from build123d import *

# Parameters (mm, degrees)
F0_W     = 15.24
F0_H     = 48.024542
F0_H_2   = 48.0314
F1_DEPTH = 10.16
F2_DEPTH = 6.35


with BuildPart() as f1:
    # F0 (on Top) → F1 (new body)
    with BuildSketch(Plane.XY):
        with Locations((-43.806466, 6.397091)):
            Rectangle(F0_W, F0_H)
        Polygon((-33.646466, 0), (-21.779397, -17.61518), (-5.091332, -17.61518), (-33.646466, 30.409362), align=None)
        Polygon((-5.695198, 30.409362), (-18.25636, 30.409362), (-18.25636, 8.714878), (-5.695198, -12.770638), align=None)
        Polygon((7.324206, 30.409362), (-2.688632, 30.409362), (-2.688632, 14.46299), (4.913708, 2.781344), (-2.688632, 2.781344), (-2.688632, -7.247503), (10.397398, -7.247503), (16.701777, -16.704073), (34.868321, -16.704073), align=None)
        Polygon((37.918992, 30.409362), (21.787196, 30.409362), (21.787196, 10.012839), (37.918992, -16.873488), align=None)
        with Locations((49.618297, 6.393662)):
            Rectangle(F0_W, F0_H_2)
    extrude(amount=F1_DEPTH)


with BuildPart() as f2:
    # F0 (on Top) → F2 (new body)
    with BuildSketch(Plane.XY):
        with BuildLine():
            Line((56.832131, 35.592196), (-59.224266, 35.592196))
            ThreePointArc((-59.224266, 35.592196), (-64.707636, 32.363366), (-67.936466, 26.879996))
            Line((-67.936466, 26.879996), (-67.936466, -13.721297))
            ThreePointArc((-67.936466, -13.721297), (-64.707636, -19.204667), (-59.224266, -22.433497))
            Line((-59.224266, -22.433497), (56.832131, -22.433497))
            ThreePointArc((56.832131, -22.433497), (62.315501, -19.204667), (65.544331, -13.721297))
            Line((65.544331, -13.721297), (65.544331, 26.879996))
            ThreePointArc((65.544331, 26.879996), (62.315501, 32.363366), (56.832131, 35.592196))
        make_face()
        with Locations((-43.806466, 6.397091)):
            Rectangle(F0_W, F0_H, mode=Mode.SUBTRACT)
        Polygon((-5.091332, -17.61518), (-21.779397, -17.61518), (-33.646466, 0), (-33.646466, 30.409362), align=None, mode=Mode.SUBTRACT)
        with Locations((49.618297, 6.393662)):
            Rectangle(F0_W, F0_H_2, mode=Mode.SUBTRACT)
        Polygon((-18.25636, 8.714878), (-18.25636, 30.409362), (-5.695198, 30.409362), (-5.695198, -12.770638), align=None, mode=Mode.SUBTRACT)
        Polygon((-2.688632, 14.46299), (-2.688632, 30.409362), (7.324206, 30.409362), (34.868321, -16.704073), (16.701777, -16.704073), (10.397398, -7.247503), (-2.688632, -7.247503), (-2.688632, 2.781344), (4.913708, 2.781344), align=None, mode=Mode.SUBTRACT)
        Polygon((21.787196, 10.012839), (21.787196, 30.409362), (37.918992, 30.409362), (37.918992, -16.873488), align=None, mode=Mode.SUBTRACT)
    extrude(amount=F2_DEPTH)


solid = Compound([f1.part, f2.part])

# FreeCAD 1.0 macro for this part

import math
import FreeCAD as App
import Part
import Sketcher

V = App.Vector
Q = App.Units.Quantity

doc = App.newDocument("Part")
body = doc.addObject("PartDesign::Body", "Body")
body.AllowCompound = True

sketch1 = body.newObject("Sketcher::SketchObject", "Sketch")
sketch1.AttachmentSupport = (doc.getObject("XY_Plane"), [""])
sketch1.MapMode = "FlatFace"
sketch1.addGeometry(Part.LineSegment(V(-51, 30, 0), V(-51, -18, 0)), False)
sketch1.addGeometry(Part.LineSegment(V(-51, -18, 0), V(-36, -18, 0)), False)
sketch1.addGeometry(Part.LineSegment(V(-36, -18, 0), V(-36, 30, 0)), False)
sketch1.addGeometry(Part.LineSegment(V(-36, 30, 0), V(-51, 30, 0)), False)
sketch1.addGeometry(Part.LineSegment(V(-34, 0, 0), V(-22, -18, 0)), False)
sketch1.addGeometry(Part.LineSegment(V(-22, -18, 0), V(-5, -18, 0)), False)
sketch1.addGeometry(Part.LineSegment(V(-5, -18, 0), V(-34, 30, 0)), False)
sketch1.addGeometry(Part.LineSegment(V(-34, 30, 0), V(-34, 0, 0)), False)
sketch1.addGeometry(Part.LineSegment(V(-6, 30, 0), V(-18, 30, 0)), False)
sketch1.addGeometry(Part.LineSegment(V(-18, 30, 0), V(-18, 9, 0)), False)
sketch1.addGeometry(Part.LineSegment(V(-18, 9, 0), V(-6, -13, 0)), False)
sketch1.addGeometry(Part.LineSegment(V(-6, -13, 0), V(-6, 30, 0)), False)
sketch1.addGeometry(Part.LineSegment(V(7, 30, 0), V(-3, 30, 0)), False)
sketch1.addGeometry(Part.LineSegment(V(-3, 30, 0), V(-3, 14, 0)), False)
sketch1.addGeometry(Part.LineSegment(V(-3, 14, 0), V(5, 3, 0)), False)
sketch1.addGeometry(Part.LineSegment(V(5, 3, 0), V(-3, 3, 0)), False)
sketch1.addGeometry(Part.LineSegment(V(-3, 3, 0), V(-3, -7, 0)), False)
sketch1.addGeometry(Part.LineSegment(V(-3, -7, 0), V(10, -7, 0)), False)
sketch1.addGeometry(Part.LineSegment(V(10, -7, 0), V(17, -17, 0)), False)
sketch1.addGeometry(Part.LineSegment(V(17, -17, 0), V(35, -17, 0)), False)
sketch1.addGeometry(Part.LineSegment(V(35, -17, 0), V(7, 30, 0)), False)
sketch1.addGeometry(Part.LineSegment(V(38, 30, 0), V(22, 30, 0)), False)
sketch1.addGeometry(Part.LineSegment(V(22, 30, 0), V(22, 10, 0)), False)
sketch1.addGeometry(Part.LineSegment(V(22, 10, 0), V(38, -17, 0)), False)
sketch1.addGeometry(Part.LineSegment(V(38, -17, 0), V(38, 30, 0)), False)
sketch1.addGeometry(Part.LineSegment(V(42, 30, 0), V(42, -18, 0)), False)
sketch1.addGeometry(Part.LineSegment(V(42, -18, 0), V(57, -18, 0)), False)
sketch1.addGeometry(Part.LineSegment(V(57, -18, 0), V(57, 30, 0)), False)
sketch1.addGeometry(Part.LineSegment(V(57, 30, 0), V(42, 30, 0)), False)
sketch1.addConstraint(Sketcher.Constraint("Coincident", 0, 2, 1, 1))
sketch1.addConstraint(Sketcher.Constraint("Coincident", 1, 2, 2, 1))
sketch1.addConstraint(Sketcher.Constraint("Coincident", 2, 2, 3, 1))
sketch1.addConstraint(Sketcher.Constraint("Coincident", 3, 2, 0, 1))
sketch1.addConstraint(Sketcher.Constraint("Coincident", 4, 2, 5, 1))
sketch1.addConstraint(Sketcher.Constraint("Coincident", 5, 2, 6, 1))
sketch1.addConstraint(Sketcher.Constraint("Coincident", 6, 2, 7, 1))
sketch1.addConstraint(Sketcher.Constraint("Coincident", 7, 2, 4, 1))
sketch1.addConstraint(Sketcher.Constraint("Coincident", 8, 2, 9, 1))
sketch1.addConstraint(Sketcher.Constraint("Coincident", 9, 2, 10, 1))
sketch1.addConstraint(Sketcher.Constraint("Coincident", 10, 2, 11, 1))
sketch1.addConstraint(Sketcher.Constraint("Coincident", 11, 2, 8, 1))
sketch1.addConstraint(Sketcher.Constraint("Coincident", 12, 2, 13, 1))
sketch1.addConstraint(Sketcher.Constraint("Coincident", 13, 2, 14, 1))
sketch1.addConstraint(Sketcher.Constraint("Coincident", 14, 2, 15, 1))
sketch1.addConstraint(Sketcher.Constraint("Coincident", 15, 2, 16, 1))
sketch1.addConstraint(Sketcher.Constraint("Coincident", 16, 2, 17, 1))
sketch1.addConstraint(Sketcher.Constraint("Coincident", 17, 2, 18, 1))
sketch1.addConstraint(Sketcher.Constraint("Coincident", 18, 2, 19, 1))
sketch1.addConstraint(Sketcher.Constraint("Coincident", 19, 2, 20, 1))
sketch1.addConstraint(Sketcher.Constraint("Coincident", 20, 2, 12, 1))
sketch1.addConstraint(Sketcher.Constraint("Coincident", 21, 2, 22, 1))
sketch1.addConstraint(Sketcher.Constraint("Coincident", 22, 2, 23, 1))
sketch1.addConstraint(Sketcher.Constraint("Coincident", 23, 2, 24, 1))
sketch1.addConstraint(Sketcher.Constraint("Coincident", 24, 2, 21, 1))
sketch1.addConstraint(Sketcher.Constraint("Coincident", 25, 2, 26, 1))
sketch1.addConstraint(Sketcher.Constraint("Coincident", 26, 2, 27, 1))
sketch1.addConstraint(Sketcher.Constraint("Coincident", 27, 2, 28, 1))
sketch1.addConstraint(Sketcher.Constraint("Coincident", 28, 2, 25, 1))
sketch1.addConstraint(Sketcher.Constraint("Vertical", 0))
sketch1.addConstraint(Sketcher.Constraint("Horizontal", 1))
sketch1.addConstraint(Sketcher.Constraint("Vertical", 2))
sketch1.addConstraint(Sketcher.Constraint("Horizontal", 3))
sketch1.addConstraint(Sketcher.Constraint("Horizontal", 5))
sketch1.addConstraint(Sketcher.Constraint("Vertical", 7))
sketch1.addConstraint(Sketcher.Constraint("Horizontal", 8))
sketch1.addConstraint(Sketcher.Constraint("Vertical", 9))
sketch1.addConstraint(Sketcher.Constraint("Vertical", 11))
sketch1.addConstraint(Sketcher.Constraint("Horizontal", 12))
sketch1.addConstraint(Sketcher.Constraint("Vertical", 13))
sketch1.addConstraint(Sketcher.Constraint("Horizontal", 15))
sketch1.addConstraint(Sketcher.Constraint("Vertical", 16))
sketch1.addConstraint(Sketcher.Constraint("Horizontal", 17))
sketch1.addConstraint(Sketcher.Constraint("Horizontal", 19))
sketch1.addConstraint(Sketcher.Constraint("Horizontal", 21))
sketch1.addConstraint(Sketcher.Constraint("Vertical", 22))
sketch1.addConstraint(Sketcher.Constraint("Vertical", 24))
sketch1.addConstraint(Sketcher.Constraint("Vertical", 25))
sketch1.addConstraint(Sketcher.Constraint("Horizontal", 26))
sketch1.addConstraint(Sketcher.Constraint("Vertical", 27))
sketch1.addConstraint(Sketcher.Constraint("Horizontal", 28))
sketch1.addConstraint(Sketcher.Constraint("PointOnObject", 7, 2, -1))
sketch1.addConstraint(Sketcher.Constraint("Parallel", 10, 20))
sketch1.addConstraint(Sketcher.Constraint("Horizontal", 1, 2, 4, 2))
sketch1.addConstraint(Sketcher.Constraint("Horizontal", 3, 2, 6, 2))
sketch1.addConstraint(Sketcher.Constraint("Horizontal", 6, 2, 8, 2))
sketch1.addConstraint(Sketcher.Constraint("Horizontal", 11, 2, 12, 2))
sketch1.addConstraint(Sketcher.Constraint("Horizontal", 20, 2, 21, 2))
sketch1.addConstraint(Sketcher.Constraint("Horizontal", 24, 2, 27, 2))
sketch1.addConstraint(Sketcher.Constraint("Vertical", 13, 2, 15, 2))
sketch1.addConstraint(Sketcher.Constraint("Equal", 3, 26))
sketch1.addConstraint(Sketcher.Constraint("DistanceX", 1, 1, 1, 2, Q("0.6 in")))
sketch1.addConstraint(Sketcher.Constraint("DistanceY", 11, 1, 11, 2, Q("1.7 in")))
sketch1.addConstraint(Sketcher.Constraint("DistanceX", 2, 2, 6, 2, Q("0.1 in")))
sketch1.addConstraint(Sketcher.Constraint("DistanceY", 25, 2, 25, 1, Q("1.891 in")))
sketch1.addConstraint(Sketcher.Constraint("Distance", 20, 54.574298))
sketch1.addConstraint(Sketcher.Constraint("DistanceX", 15, 2, 15, 1, 7.60234))
sketch1.addConstraint(Sketcher.Constraint("DistanceX", 17, 1, 17, 2, 13.08603))
sketch1.addConstraint(Sketcher.Constraint("DistanceY", 0, 2, 0, 1, 48.024542))
sketch1.addConstraint(Sketcher.Constraint("DistanceY", 24, 1, 24, 2, 47.28285))
sketch1.addConstraint(Sketcher.Constraint("DistanceX", 10, 2, -1, 1, 5.695198))
sketch1.addConstraint(Sketcher.Constraint("DistanceX", -1, 1, 17, 2, 10.397398))
sketch1.addConstraint(Sketcher.Constraint("DistanceX", 4, 2, 10, 2, 16.084199))
sketch1.addConstraint(Sketcher.Constraint("DistanceX", 5, 2, 15, 2, 2.4027))
sketch1.addConstraint(Sketcher.Constraint("DistanceX", 14, 2, 20, 2, 2.410498))
sketch1.addConstraint(Sketcher.Constraint("DistanceX", 17, 2, 22, 2, 11.389798))
sketch1.addConstraint(Sketcher.Constraint("DistanceX", 17, 2, 25, 2, 31.600899))
sketch1.addConstraint(Sketcher.Constraint("Distance", 4, 21.23963))
sketch1.addConstraint(Sketcher.Constraint("Distance", 14, 13.93759))
sketch1.addConstraint(Sketcher.Constraint("DistanceX", 8, 2, 8, 1, 12.561162))
sketch1.addConstraint(Sketcher.Constraint("DistanceX", 19, 1, 19, 2, 18.166544))
sketch1.addConstraint(Sketcher.Constraint("DistanceX", 21, 2, 21, 1, 16.131796))
sketch1.addConstraint(Sketcher.Constraint("DistanceY", 7, 2, 7, 1, 30.409362))
sketch1.addConstraint(Sketcher.Constraint("DistanceY", 9, 2, 9, 1, 21.694484))
sketch1.addConstraint(Sketcher.Constraint("DistanceY", 13, 2, 13, 1, 15.946372))
sketch1.addConstraint(Sketcher.Constraint("DistanceY", 16, 2, 16, 1, 10.028847))
sketch1.addConstraint(Sketcher.Constraint("DistanceY", 22, 2, 22, 1, 20.396523))
pad1 = body.newObject("PartDesign::Pad", "Pad")
pad1.Profile = sketch1
pad1.Length = Q("0.4 in")
body2 = doc.addObject("PartDesign::Body", "Body001")

sketch2 = body2.newObject("Sketcher::SketchObject", "Sketch001")
sketch2.AttachmentSupport = (doc.getObject("XY_Plane001"), [""])
sketch2.MapMode = "FlatFace"
sketch2.addGeometry(Part.LineSegment(V(57, 36, 0), V(-59, 36, 0)), False)
sketch2.addGeometry(Part.ArcOfCircle(Part.Circle(V(-56, 23, 0), V(0, 0, 1), 13), math.radians(106), math.radians(164)), False)
sketch2.addGeometry(Part.LineSegment(V(-68, 27, 0), V(-68, -14, 0)), False)
sketch2.addGeometry(Part.ArcOfCircle(Part.Circle(V(-56, -10, 0), V(0, 0, 1), 13), math.radians(-164), math.radians(-106)), False)
sketch2.addGeometry(Part.LineSegment(V(-59, -22, 0), V(57, -22, 0)), False)
sketch2.addGeometry(Part.ArcOfCircle(Part.Circle(V(53, -10, 0), V(0, 0, 1), 13), math.radians(-74), math.radians(-16)), False)
sketch2.addGeometry(Part.LineSegment(V(66, -14, 0), V(66, 27, 0)), False)
sketch2.addGeometry(Part.ArcOfCircle(Part.Circle(V(53, 23, 0), V(0, 0, 1), 13), math.radians(16), math.radians(74)), False)
sketch2.addGeometry(Part.LineSegment(V(-36, -18, 0), V(-51, -18, 0)), False)
sketch2.addGeometry(Part.LineSegment(V(-51, -18, 0), V(-51, 30, 0)), False)
sketch2.addGeometry(Part.LineSegment(V(-51, 30, 0), V(-36, 30, 0)), False)
sketch2.addGeometry(Part.LineSegment(V(-36, 30, 0), V(-36, -18, 0)), False)
sketch2.addGeometry(Part.LineSegment(V(-34, 30, 0), V(-5, -18, 0)), False)
sketch2.addGeometry(Part.LineSegment(V(-5, -18, 0), V(-22, -18, 0)), False)
sketch2.addGeometry(Part.LineSegment(V(-22, -18, 0), V(-34, 0, 0)), False)
sketch2.addGeometry(Part.LineSegment(V(-34, 0, 0), V(-34, 30, 0)), False)
sketch2.addGeometry(Part.LineSegment(V(-6, -13, 0), V(-18, 9, 0)), False)
sketch2.addGeometry(Part.LineSegment(V(-18, 9, 0), V(-18, 30, 0)), False)
sketch2.addGeometry(Part.LineSegment(V(-18, 30, 0), V(-6, 30, 0)), False)
sketch2.addGeometry(Part.LineSegment(V(-6, 30, 0), V(-6, -13, 0)), False)
sketch2.addGeometry(Part.LineSegment(V(5, 3, 0), V(-3, 14, 0)), False)
sketch2.addGeometry(Part.LineSegment(V(-3, 14, 0), V(-3, 30, 0)), False)
sketch2.addGeometry(Part.LineSegment(V(-3, 30, 0), V(7, 30, 0)), False)
sketch2.addGeometry(Part.LineSegment(V(7, 30, 0), V(35, -17, 0)), False)
sketch2.addGeometry(Part.LineSegment(V(35, -17, 0), V(17, -17, 0)), False)
sketch2.addGeometry(Part.LineSegment(V(17, -17, 0), V(10, -7, 0)), False)
sketch2.addGeometry(Part.LineSegment(V(10, -7, 0), V(-3, -7, 0)), False)
sketch2.addGeometry(Part.LineSegment(V(-3, -7, 0), V(-3, 3, 0)), False)
sketch2.addGeometry(Part.LineSegment(V(-3, 3, 0), V(5, 3, 0)), False)
sketch2.addGeometry(Part.LineSegment(V(38, -17, 0), V(22, 10, 0)), False)
sketch2.addGeometry(Part.LineSegment(V(22, 10, 0), V(22, 30, 0)), False)
sketch2.addGeometry(Part.LineSegment(V(22, 30, 0), V(38, 30, 0)), False)
sketch2.addGeometry(Part.LineSegment(V(38, 30, 0), V(38, -17, 0)), False)
sketch2.addGeometry(Part.LineSegment(V(57, -18, 0), V(42, -18, 0)), False)
sketch2.addGeometry(Part.LineSegment(V(42, -18, 0), V(42, 30, 0)), False)
sketch2.addGeometry(Part.LineSegment(V(42, 30, 0), V(57, 30, 0)), False)
sketch2.addGeometry(Part.LineSegment(V(57, 30, 0), V(57, -18, 0)), False)
sketch2.addConstraint(Sketcher.Constraint("Coincident", 0, 2, 1, 1))
sketch2.addConstraint(Sketcher.Constraint("Coincident", 1, 2, 2, 1))
sketch2.addConstraint(Sketcher.Constraint("Coincident", 2, 2, 3, 1))
sketch2.addConstraint(Sketcher.Constraint("Coincident", 3, 2, 4, 1))
sketch2.addConstraint(Sketcher.Constraint("Coincident", 4, 2, 5, 1))
sketch2.addConstraint(Sketcher.Constraint("Coincident", 5, 2, 6, 1))
sketch2.addConstraint(Sketcher.Constraint("Coincident", 6, 2, 7, 1))
sketch2.addConstraint(Sketcher.Constraint("Coincident", 7, 2, 0, 1))
sketch2.addConstraint(Sketcher.Constraint("Coincident", 8, 2, 9, 1))
sketch2.addConstraint(Sketcher.Constraint("Coincident", 9, 2, 10, 1))
sketch2.addConstraint(Sketcher.Constraint("Coincident", 10, 2, 11, 1))
sketch2.addConstraint(Sketcher.Constraint("Coincident", 11, 2, 8, 1))
sketch2.addConstraint(Sketcher.Constraint("Coincident", 12, 2, 13, 1))
sketch2.addConstraint(Sketcher.Constraint("Coincident", 13, 2, 14, 1))
sketch2.addConstraint(Sketcher.Constraint("Coincident", 14, 2, 15, 1))
sketch2.addConstraint(Sketcher.Constraint("Coincident", 15, 2, 12, 1))
sketch2.addConstraint(Sketcher.Constraint("Coincident", 16, 2, 17, 1))
sketch2.addConstraint(Sketcher.Constraint("Coincident", 17, 2, 18, 1))
sketch2.addConstraint(Sketcher.Constraint("Coincident", 18, 2, 19, 1))
sketch2.addConstraint(Sketcher.Constraint("Coincident", 19, 2, 16, 1))
sketch2.addConstraint(Sketcher.Constraint("Coincident", 20, 2, 21, 1))
sketch2.addConstraint(Sketcher.Constraint("Coincident", 21, 2, 22, 1))
sketch2.addConstraint(Sketcher.Constraint("Coincident", 22, 2, 23, 1))
sketch2.addConstraint(Sketcher.Constraint("Coincident", 23, 2, 24, 1))
sketch2.addConstraint(Sketcher.Constraint("Coincident", 24, 2, 25, 1))
sketch2.addConstraint(Sketcher.Constraint("Coincident", 25, 2, 26, 1))
sketch2.addConstraint(Sketcher.Constraint("Coincident", 26, 2, 27, 1))
sketch2.addConstraint(Sketcher.Constraint("Coincident", 27, 2, 28, 1))
sketch2.addConstraint(Sketcher.Constraint("Coincident", 28, 2, 20, 1))
sketch2.addConstraint(Sketcher.Constraint("Coincident", 29, 2, 30, 1))
sketch2.addConstraint(Sketcher.Constraint("Coincident", 30, 2, 31, 1))
sketch2.addConstraint(Sketcher.Constraint("Coincident", 31, 2, 32, 1))
sketch2.addConstraint(Sketcher.Constraint("Coincident", 32, 2, 29, 1))
sketch2.addConstraint(Sketcher.Constraint("Coincident", 33, 2, 34, 1))
sketch2.addConstraint(Sketcher.Constraint("Coincident", 34, 2, 35, 1))
sketch2.addConstraint(Sketcher.Constraint("Coincident", 35, 2, 36, 1))
sketch2.addConstraint(Sketcher.Constraint("Coincident", 36, 2, 33, 1))
sketch2.addConstraint(Sketcher.Constraint("Horizontal", 0))
sketch2.addConstraint(Sketcher.Constraint("Vertical", 2))
sketch2.addConstraint(Sketcher.Constraint("Horizontal", 4))
sketch2.addConstraint(Sketcher.Constraint("Vertical", 6))
sketch2.addConstraint(Sketcher.Constraint("Horizontal", 8))
sketch2.addConstraint(Sketcher.Constraint("Vertical", 9))
sketch2.addConstraint(Sketcher.Constraint("Horizontal", 10))
sketch2.addConstraint(Sketcher.Constraint("Vertical", 11))
sketch2.addConstraint(Sketcher.Constraint("Horizontal", 13))
sketch2.addConstraint(Sketcher.Constraint("Vertical", 15))
sketch2.addConstraint(Sketcher.Constraint("Vertical", 17))
sketch2.addConstraint(Sketcher.Constraint("Horizontal", 18))
sketch2.addConstraint(Sketcher.Constraint("Vertical", 19))
sketch2.addConstraint(Sketcher.Constraint("Vertical", 21))
sketch2.addConstraint(Sketcher.Constraint("Horizontal", 22))
sketch2.addConstraint(Sketcher.Constraint("Horizontal", 24))
sketch2.addConstraint(Sketcher.Constraint("Horizontal", 26))
sketch2.addConstraint(Sketcher.Constraint("Vertical", 27))
sketch2.addConstraint(Sketcher.Constraint("Horizontal", 28))
sketch2.addConstraint(Sketcher.Constraint("Vertical", 30))
sketch2.addConstraint(Sketcher.Constraint("Horizontal", 31))
sketch2.addConstraint(Sketcher.Constraint("Vertical", 32))
sketch2.addConstraint(Sketcher.Constraint("Horizontal", 33))
sketch2.addConstraint(Sketcher.Constraint("Vertical", 34))
sketch2.addConstraint(Sketcher.Constraint("Horizontal", 35))
sketch2.addConstraint(Sketcher.Constraint("Vertical", 36))
sketch2.addConstraint(Sketcher.Constraint("Equal", 1, 3))
sketch2.addConstraint(Sketcher.Constraint("Equal", 3, 5))
sketch2.addConstraint(Sketcher.Constraint("Equal", 5, 7))
sketch2.addConstraint(Sketcher.Constraint("PointOnObject", 14, 2, -1))
sketch2.addConstraint(Sketcher.Constraint("Parallel", 16, 23))
sketch2.addConstraint(Sketcher.Constraint("Horizontal", 3, 3, 5, 3))
sketch2.addConstraint(Sketcher.Constraint("Horizontal", 1, 3, 7, 3))
sketch2.addConstraint(Sketcher.Constraint("Horizontal", 2, 2, 5, 2))
sketch2.addConstraint(Sketcher.Constraint("Horizontal", 1, 2, 6, 2))
sketch2.addConstraint(Sketcher.Constraint("Horizontal", 11, 2, 12, 2))
sketch2.addConstraint(Sketcher.Constraint("Horizontal", 10, 2, 15, 2))
sketch2.addConstraint(Sketcher.Constraint("Horizontal", 15, 2, 17, 2))
sketch2.addConstraint(Sketcher.Constraint("Horizontal", 18, 2, 21, 2))
sketch2.addConstraint(Sketcher.Constraint("Horizontal", 22, 2, 30, 2))
sketch2.addConstraint(Sketcher.Constraint("Horizontal", 31, 2, 34, 2))
sketch2.addConstraint(Sketcher.Constraint("Vertical", 1, 3, 3, 3))
sketch2.addConstraint(Sketcher.Constraint("Vertical", 0, 2, 3, 2))
sketch2.addConstraint(Sketcher.Constraint("Vertical", 21, 2, 26, 2))
sketch2.addConstraint(Sketcher.Constraint("Equal", 10, 33))
sketch2.addConstraint(Sketcher.Constraint("Radius", 1, Q("0.5 in")))
sketch2.addConstraint(Sketcher.Constraint("DistanceX", 8, 2, 8, 1, Q("0.6 in")))
sketch2.addConstraint(Sketcher.Constraint("DistanceY", 19, 2, 19, 1, Q("1.7 in")))
sketch2.addConstraint(Sketcher.Constraint("DistanceX", 11, 2, 14, 2, Q("0.1 in")))
sketch2.addConstraint(Sketcher.Constraint("DistanceY", 34, 1, 34, 2, Q("1.891 in")))
sketch2.addConstraint(Sketcher.Constraint("DistanceX", 2, 2, 8, 2, Q("0.65 in")))
sketch2.addConstraint(Sketcher.Constraint("DistanceX", 1, 2, 0, 2, Q("0.343 in")))
sketch2.addConstraint(Sketcher.Constraint("DistanceY", 1, 2, 0, 2, Q("0.343 in")))
sketch2.addConstraint(Sketcher.Constraint("Distance", 23, 54.574298))
sketch2.addConstraint(Sketcher.Constraint("DistanceX", 26, 2, 26, 1, 13.08603))
sketch2.addConstraint(Sketcher.Constraint("DistanceX", 28, 1, 28, 2, 7.60234))
sketch2.addConstraint(Sketcher.Constraint("DistanceY", 9, 1, 9, 2, 48.024542))
sketch2.addConstraint(Sketcher.Constraint("DistanceY", 32, 2, 32, 1, 47.28285))
sketch2.addConstraint(Sketcher.Constraint("DistanceX", 18, 2, -1, 1, 5.695198))
sketch2.addConstraint(Sketcher.Constraint("DistanceX", -1, 1, 25, 2, 10.397398))
sketch2.addConstraint(Sketcher.Constraint("DistanceX", 13, 2, 19, 2, 16.084199))
sketch2.addConstraint(Sketcher.Constraint("DistanceX", 12, 2, 20, 2, 2.4027))
sketch2.addConstraint(Sketcher.Constraint("DistanceX", 25, 2, 29, 2, 11.389798))
sketch2.addConstraint(Sketcher.Constraint("DistanceX", 30, 2, 34, 2, 20.211101))
sketch2.addConstraint(Sketcher.Constraint("Distance", 14, 21.23963))
sketch2.addConstraint(Sketcher.Constraint("Distance", 20, 13.93759))
sketch2.addConstraint(Sketcher.Constraint("DistanceX", 0, 2, 0, 1, 116.056397))
sketch2.addConstraint(Sketcher.Constraint("DistanceX", 18, 1, 18, 2, 12.561162))
sketch2.addConstraint(Sketcher.Constraint("DistanceX", 22, 1, 22, 2, 10.012838))
sketch2.addConstraint(Sketcher.Constraint("DistanceX", 24, 2, 24, 1, 18.166544))
sketch2.addConstraint(Sketcher.Constraint("DistanceX", 31, 1, 31, 2, 16.131796))
sketch2.addConstraint(Sketcher.Constraint("DistanceY", 2, 2, 2, 1, 40.601293))
sketch2.addConstraint(Sketcher.Constraint("DistanceY", 15, 1, 15, 2, 30.409362))
sketch2.addConstraint(Sketcher.Constraint("DistanceY", 17, 1, 17, 2, 21.694484))
sketch2.addConstraint(Sketcher.Constraint("DistanceY", 21, 1, 21, 2, 15.946372))
sketch2.addConstraint(Sketcher.Constraint("DistanceY", 27, 1, 27, 2, 10.028847))
sketch2.addConstraint(Sketcher.Constraint("DistanceY", 30, 1, 30, 2, 20.396523))
sketch2.addConstraint(Sketcher.Constraint("DistanceY", -1, 1, 1, 3, 23.383111))
pad2 = body2.newObject("PartDesign::Pad", "Pad001")
pad2.Profile = sketch2
pad2.Length = Q("0.25 in")

doc.recompute()
